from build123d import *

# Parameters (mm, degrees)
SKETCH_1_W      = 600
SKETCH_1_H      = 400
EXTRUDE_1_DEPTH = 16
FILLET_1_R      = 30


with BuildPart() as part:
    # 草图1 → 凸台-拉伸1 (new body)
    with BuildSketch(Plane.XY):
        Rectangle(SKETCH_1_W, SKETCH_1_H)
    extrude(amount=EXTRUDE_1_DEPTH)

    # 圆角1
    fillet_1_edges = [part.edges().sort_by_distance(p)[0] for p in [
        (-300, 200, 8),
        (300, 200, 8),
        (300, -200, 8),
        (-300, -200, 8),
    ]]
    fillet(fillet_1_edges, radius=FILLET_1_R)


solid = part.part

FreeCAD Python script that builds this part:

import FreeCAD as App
import Part
import Sketcher
Q = App.Units.Quantity


def edges_at(feature, points):
    """Names of the edges that pass closest to the given points."""
    edges = feature.Shape.Edges
    near = lambda p: min(range(len(edges)), key=lambda i: edges[i].distToShape(Part.Vertex(*p))[0])
    return sorted({f"Edge{near(p) + 1}" for p in points})


def add_polygon(sketch, points):
    """Adds a closed chain of lines whose ends are joined by coincident constraints."""
    first, n = sketch.GeometryCount, len(points)
    for a, b in zip(points, points[1:] + points[:1]):
        sketch.addGeometry(Part.LineSegment(App.Vector(*a, 0), App.Vector(*b, 0)), False)
    for i in range(n):
        sketch.addConstraint(Sketcher.Constraint("Coincident", first + i, 2, first + (i + 1) % n, 1))

doc = App.newDocument("Part")
body = doc.addObject("PartDesign::Body", "Body")

sketch1 = body.newObject("Sketcher::SketchObject", "Sketch")
sketch1.AttachmentSupport = (doc.getObject("XY_Plane"), [""])
sketch1.MapMode = "FlatFace"
add_polygon(sketch1, [(-300, 200), (-300, -200), (300, -200), (300, 200)])
sketch1.addConstraint(Sketcher.Constraint("Vertical", 0))
sketch1.addConstraint(Sketcher.Constraint("Horizontal", 1))
sketch1.addConstraint(Sketcher.Constraint("Vertical", 2))
sketch1.addConstraint(Sketcher.Constraint("Horizontal", 3))
sketch1.addConstraint(Sketcher.Constraint("Symmetric", 0, 2, 2, 2, -1, 1))
sketch1.addConstraint(Sketcher.Constraint("DistanceX", 1, 1, 1, 2, Q("600 mm")))
sketch1.addConstraint(Sketcher.Constraint("DistanceY", 0, 2, 0, 1, Q("400 mm")))
pad1 = body.newObject("PartDesign::Pad", "Pad")
pad1.Profile = sketch1
pad1.Length = 16
doc.recompute()

fillet = body.newObject("PartDesign::Fillet", "Fillet")
fillet.Base = (pad1, edges_at(pad1, [
    (-300, 200, 8),
    (300, 200, 8),
    (300, -200, 8),
    (-300, -200, 8),
]))
fillet.Radius = 30

doc.recompute()
